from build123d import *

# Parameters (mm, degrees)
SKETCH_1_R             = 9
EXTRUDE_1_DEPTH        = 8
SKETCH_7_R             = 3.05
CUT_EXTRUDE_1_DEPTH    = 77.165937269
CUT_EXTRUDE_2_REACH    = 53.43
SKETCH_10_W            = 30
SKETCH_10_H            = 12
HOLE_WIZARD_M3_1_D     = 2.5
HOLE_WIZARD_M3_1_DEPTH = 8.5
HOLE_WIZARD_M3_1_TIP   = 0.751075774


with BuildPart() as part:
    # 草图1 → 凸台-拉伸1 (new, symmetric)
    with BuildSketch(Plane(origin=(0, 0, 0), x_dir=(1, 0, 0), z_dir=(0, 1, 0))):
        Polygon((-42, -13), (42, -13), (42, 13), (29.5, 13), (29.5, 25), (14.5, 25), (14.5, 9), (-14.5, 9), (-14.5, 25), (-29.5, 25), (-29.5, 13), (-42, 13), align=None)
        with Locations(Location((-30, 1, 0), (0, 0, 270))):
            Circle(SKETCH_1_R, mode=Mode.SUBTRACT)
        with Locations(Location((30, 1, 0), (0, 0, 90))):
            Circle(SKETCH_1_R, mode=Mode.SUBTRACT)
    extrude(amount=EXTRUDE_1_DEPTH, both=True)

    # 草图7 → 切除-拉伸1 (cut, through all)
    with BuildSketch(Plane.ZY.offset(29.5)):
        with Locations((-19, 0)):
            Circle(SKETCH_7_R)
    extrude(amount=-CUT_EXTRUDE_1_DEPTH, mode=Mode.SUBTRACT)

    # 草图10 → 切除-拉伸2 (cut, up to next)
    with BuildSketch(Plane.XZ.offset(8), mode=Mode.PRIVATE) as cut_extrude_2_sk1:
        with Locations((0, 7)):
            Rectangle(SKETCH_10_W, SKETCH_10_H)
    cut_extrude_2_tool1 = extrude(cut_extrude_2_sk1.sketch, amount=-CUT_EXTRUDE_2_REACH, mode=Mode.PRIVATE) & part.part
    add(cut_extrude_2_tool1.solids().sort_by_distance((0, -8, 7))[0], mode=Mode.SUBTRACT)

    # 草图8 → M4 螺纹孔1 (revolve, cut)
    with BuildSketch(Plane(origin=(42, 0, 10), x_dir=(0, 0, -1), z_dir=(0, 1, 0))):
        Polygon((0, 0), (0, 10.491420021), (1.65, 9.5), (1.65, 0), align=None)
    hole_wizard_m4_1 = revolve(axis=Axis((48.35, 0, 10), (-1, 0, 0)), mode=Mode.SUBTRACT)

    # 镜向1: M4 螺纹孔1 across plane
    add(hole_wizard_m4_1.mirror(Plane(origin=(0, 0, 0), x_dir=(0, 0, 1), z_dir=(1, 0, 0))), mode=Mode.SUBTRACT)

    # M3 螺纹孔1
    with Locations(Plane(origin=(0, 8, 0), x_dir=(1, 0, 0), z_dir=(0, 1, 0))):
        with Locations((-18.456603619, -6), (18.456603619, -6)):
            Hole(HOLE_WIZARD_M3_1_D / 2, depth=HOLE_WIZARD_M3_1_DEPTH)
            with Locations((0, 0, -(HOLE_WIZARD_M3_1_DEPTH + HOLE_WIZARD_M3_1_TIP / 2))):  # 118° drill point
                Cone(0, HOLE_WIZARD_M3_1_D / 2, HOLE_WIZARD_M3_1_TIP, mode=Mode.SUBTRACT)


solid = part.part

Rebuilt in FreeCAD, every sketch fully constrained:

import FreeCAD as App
import Part
import Sketcher
from FreeCAD import Vector
Q = App.Units.Quantity

doc = App.newDocument("Part")
params = doc.addObject("Spreadsheet::Sheet", "Params")
for row, (alias, value) in enumerate([
    ("sketch1_diameter", "18 mm"),
    ("sketch1_width", "84 mm"),
    ("sketch1_width2", "15 mm"),
    ("sketch1_width3", "29 mm"),
    ("sketch1_height", "26 mm"),
    ("pad1_length", "16 mm"),
    ("sketch2_diameter", "6.1 mm"),
    ("sketch3_width", "30 mm"),
    ("sketch3_height", "12 mm"),
    ("sketch4_width", "9.5 mm"),
    ("sketch4_height", "1.65 mm"),
    ("groove_angle", "360 deg"),
    ("sketch5_diameter", "2.5 mm"),
    ("hole_diameter", "2.5 mm"),
    ("hole_depth", "8.5 mm"),
], start=1):
    params.set(f"A{row}", alias)
    params.set(f"B{row}", "=" + value)
    params.setAlias(f"B{row}", alias)

body = doc.addObject("PartDesign::Body", "Body")

# Sketch on XZ plane
sketch1 = body.newObject("Sketcher::SketchObject", "Sketch")
sketch1.AttachmentSupport = (doc.getObject("XZ_Plane"), [""])
sketch1.MapMode = "FlatFace"
sketch1.addGeometry(Part.LineSegment(Vector(-42, 13, 0), Vector(42, 13, 0)), False)
sketch1.addGeometry(Part.LineSegment(Vector(42, 13, 0), Vector(42, -13, 0)), False)
sketch1.addGeometry(Part.LineSegment(Vector(42, -13, 0), Vector(30, -13, 0)), False)
sketch1.addGeometry(Part.LineSegment(Vector(30, -13, 0), Vector(30, -25, 0)), False)
sketch1.addGeometry(Part.LineSegment(Vector(30, -25, 0), Vector(14, -25, 0)), False)
sketch1.addGeometry(Part.LineSegment(Vector(14, -25, 0), Vector(14, -9, 0)), False)
sketch1.addGeometry(Part.LineSegment(Vector(14, -9, 0), Vector(-14, -9, 0)), False)
sketch1.addGeometry(Part.LineSegment(Vector(-14, -9, 0), Vector(-14, -25, 0)), False)
sketch1.addGeometry(Part.LineSegment(Vector(-14, -25, 0), Vector(-30, -25, 0)), False)
sketch1.addGeometry(Part.LineSegment(Vector(-30, -25, 0), Vector(-30, -13, 0)), False)
sketch1.addGeometry(Part.LineSegment(Vector(-30, -13, 0), Vector(-42, -13, 0)), False)
sketch1.addGeometry(Part.LineSegment(Vector(-42, -13, 0), Vector(-42, 13, 0)), False)
sketch1.addGeometry(Part.Circle(Vector(-30, -1, 0), Vector(0, 0, 1), 9), False)
sketch1.addGeometry(Part.Circle(Vector(30, -1, 0), Vector(0, 0, 1), 9), False)
sketch1.addConstraint(Sketcher.Constraint("Coincident", 0, 2, 1, 1))
sketch1.addConstraint(Sketcher.Constraint("Coincident", 1, 2, 2, 1))
sketch1.addConstraint(Sketcher.Constraint("Coincident", 2, 2, 3, 1))
sketch1.addConstraint(Sketcher.Constraint("Coincident", 3, 2, 4, 1))
sketch1.addConstraint(Sketcher.Constraint("Coincident", 4, 2, 5, 1))
sketch1.addConstraint(Sketcher.Constraint("Coincident", 5, 2, 6, 1))
sketch1.addConstraint(Sketcher.Constraint("Coincident", 6, 2, 7, 1))
sketch1.addConstraint(Sketcher.Constraint("Coincident", 7, 2, 8, 1))
sketch1.addConstraint(Sketcher.Constraint("Coincident", 8, 2, 9, 1))
sketch1.addConstraint(Sketcher.Constraint("Coincident", 9, 2, 10, 1))
sketch1.addConstraint(Sketcher.Constraint("Coincident", 10, 2, 11, 1))
sketch1.addConstraint(Sketcher.Constraint("Coincident", 11, 2, 0, 1))
sketch1.addConstraint(Sketcher.Constraint("Horizontal", 0))
sketch1.addConstraint(Sketcher.Constraint("Vertical", 1))
sketch1.addConstraint(Sketcher.Constraint("Horizontal", 2))
sketch1.addConstraint(Sketcher.Constraint("Vertical", 3))
sketch1.addConstraint(Sketcher.Constraint("Horizontal", 4))
sketch1.addConstraint(Sketcher.Constraint("Vertical", 5))
sketch1.addConstraint(Sketcher.Constraint("Horizontal", 6))
sketch1.addConstraint(Sketcher.Constraint("Vertical", 7))
sketch1.addConstraint(Sketcher.Constraint("Horizontal", 8))
sketch1.addConstraint(Sketcher.Constraint("Vertical", 9))
sketch1.addConstraint(Sketcher.Constraint("Horizontal", 10))
sketch1.addConstraint(Sketcher.Constraint("Vertical", 11))
sketch1.addConstraint(Sketcher.Constraint("Equal", 12, 13))
sketch1.addConstraint(Sketcher.Constraint("Symmetric", 0, 2, 10, 2, -1, 1))
sketch1.addConstraint(Sketcher.Constraint("Symmetric", 12, 3, 13, 3, -2))
sketch1.addConstraint(Sketcher.Constraint("Symmetric", 4, 2, 7, 2, -2))
sketch1.addConstraint(Sketcher.Constraint("Symmetric", 2, 2, 9, 2, -2))
sketch1.addConstraint(Sketcher.Constraint("Diameter", 12, Q("18 mm")))
sketch1.addConstraint(Sketcher.Constraint("DistanceX", 0, 1, 0, 2, Q("84 mm")))
sketch1.addConstraint(Sketcher.Constraint("DistanceX", 4, 2, 4, 1, Q("15 mm")))
sketch1.addConstraint(Sketcher.Constraint("DistanceX", 6, 2, 6, 1, Q("29 mm")))
sketch1.addConstraint(Sketcher.Constraint("DistanceY", 1, 2, 1, 1, Q("26 mm")))
sketch1.addConstraint(Sketcher.Constraint("DistanceY", 3, 2, 3, 1, Q("12 mm")))
sketch1.addConstraint(Sketcher.Constraint("DistanceY", 5, 1, 5, 2, Q("16 mm")))
sketch1.addConstraint(Sketcher.Constraint("DistanceX", 12, 3, -1, 1, Q("30 mm")))
sketch1.addConstraint(Sketcher.Constraint("DistanceY", 12, 3, -1, 1, Q("1 mm")))
sketch1.setExpression("Constraints[29]", "Params.sketch1_diameter")
sketch1.setExpression("Constraints[30]", "Params.sketch1_width")
sketch1.setExpression("Constraints[31]", "Params.sketch1_width2")
sketch1.setExpression("Constraints[32]", "Params.sketch1_width3")
sketch1.setExpression("Constraints[33]", "Params.sketch1_height")
pad1 = body.newObject("PartDesign::Pad", "Pad")
pad1.Profile = sketch1
pad1.setExpression("Length", "Params.pad1_length")
pad1.Midplane = True

# Sketch on YZ plane
sketch2 = body.newObject("Sketcher::SketchObject", "Sketch001")
sketch2.AttachmentSupport = (doc.getObject("YZ_Plane"), [""])
sketch2.MapMode = "FlatFace"
sketch2.AttachmentOffset = App.Placement(Vector(0, 0, -29.5), App.Rotation())
sketch2.addGeometry(Part.Circle(Vector(0, -19, 0), Vector(0, 0, 1), 3), False)
sketch2.addConstraint(Sketcher.Constraint("PointOnObject", 0, 3, -2))
sketch2.addConstraint(Sketcher.Constraint("Diameter", 0, Q("6.1 mm")))
sketch2.addConstraint(Sketcher.Constraint("DistanceY", 0, 3, -1, 1, Q("19 mm")))
sketch2.setExpression("Constraints[1]", "Params.sketch2_diameter")
pocket1 = body.newObject("PartDesign::Pocket", "Pocket")
pocket1.Profile = sketch2
pocket1.Type = "ThroughAll"
pocket1.Reversed = True

# Sketch on XZ plane
sketch3 = body.newObject("Sketcher::SketchObject", "Sketch002")
sketch3.AttachmentSupport = (doc.getObject("XZ_Plane"), [""])
sketch3.MapMode = "FlatFace"
sketch3.AttachmentOffset = App.Placement(Vector(0, 0, 8), App.Rotation())
sketch3.addGeometry(Part.LineSegment(Vector(-15, 13, 0), Vector(-15, 1, 0)), False)
sketch3.addGeometry(Part.LineSegment(Vector(-15, 1, 0), Vector(15, 1, 0)), False)
sketch3.addGeometry(Part.LineSegment(Vector(15, 1, 0), Vector(15, 13, 0)), False)
sketch3.addGeometry(Part.LineSegment(Vector(15, 13, 0), Vector(-15, 13, 0)), False)
sketch3.addConstraint(Sketcher.Constraint("Coincident", 0, 2, 1, 1))
sketch3.addConstraint(Sketcher.Constraint("Coincident", 1, 2, 2, 1))
sketch3.addConstraint(Sketcher.Constraint("Coincident", 2, 2, 3, 1))
sketch3.addConstraint(Sketcher.Constraint("Coincident", 3, 2, 0, 1))
sketch3.addConstraint(Sketcher.Constraint("Vertical", 0))
sketch3.addConstraint(Sketcher.Constraint("Horizontal", 1))
sketch3.addConstraint(Sketcher.Constraint("Vertical", 2))
sketch3.addConstraint(Sketcher.Constraint("Horizontal", 3))
sketch3.addConstraint(Sketcher.Constraint("DistanceX", 1, 1, 1, 2, Q("30 mm")))
sketch3.addConstraint(Sketcher.Constraint("DistanceY", 0, 2, 0, 1, Q("12 mm")))
sketch3.addConstraint(Sketcher.Constraint("DistanceX", 0, 2, -1, 1, Q("15 mm")))
sketch3.addConstraint(Sketcher.Constraint("DistanceY", -1, 1, 0, 2, Q("1 mm")))
sketch3.setExpression("Constraints[8]", "Params.sketch3_width")
sketch3.setExpression("Constraints[9]", "Params.sketch3_height")
pocket2 = body.newObject("PartDesign::Pocket", "Pocket001")
pocket2.Profile = sketch3
pocket2.Type = "UpToFirst"

# Sketch on XZ plane
sketch4 = body.newObject("Sketcher::SketchObject", "Sketch003")
sketch4.AttachmentSupport = (doc.getObject("XZ_Plane"), [""])
sketch4.MapMode = "FlatFace"
sketch4.addGeometry(Part.LineSegment(Vector(31.5, 10, 0), Vector(42, 10, 0)), False)
sketch4.addGeometry(Part.LineSegment(Vector(42, 10, 0), Vector(42, 8.3, 0)), False)
sketch4.addGeometry(Part.LineSegment(Vector(42, 8.3, 0), Vector(32.5, 8.3, 0)), False)
sketch4.addGeometry(Part.LineSegment(Vector(32.5, 8.3, 0), Vector(31.5, 10, 0)), False)
sketch4.addGeometry(Part.LineSegment(Vector(42, 10, 0), Vector(31.5, 10, 0)), True)  # axis
sketch4.addConstraint(Sketcher.Constraint("Coincident", 0, 2, 1, 1))
sketch4.addConstraint(Sketcher.Constraint("Coincident", 1, 2, 2, 1))
sketch4.addConstraint(Sketcher.Constraint("Coincident", 2, 2, 3, 1))
sketch4.addConstraint(Sketcher.Constraint("Coincident", 3, 2, 0, 1))
sketch4.addConstraint(Sketcher.Constraint("Horizontal", 0))
sketch4.addConstraint(Sketcher.Constraint("Vertical", 1))
sketch4.addConstraint(Sketcher.Constraint("Horizontal", 2))
sketch4.addConstraint(Sketcher.Constraint("Horizontal", 4))
sketch4.addConstraint(Sketcher.Constraint("Coincident", 4, 1, 0, 2))
sketch4.addConstraint(Sketcher.Constraint("Equal", 0, 4))
sketch4.addConstraint(Sketcher.Constraint("Angle", 3, Q("121 deg")))
sketch4.addConstraint(Sketcher.Constraint("DistanceX", 2, 2, 2, 1, Q("9.5 mm")))
sketch4.addConstraint(Sketcher.Constraint("DistanceX", -1, 1, 0, 2, Q("42 mm")))
sketch4.addConstraint(Sketcher.Constraint("DistanceY", -1, 1, 0, 2, Q("10 mm")))
sketch4.addConstraint(Sketcher.Constraint("DistanceY", 1, 2, 1, 1, Q("1.65 mm")))
sketch4.setExpression("Constraints[11]", "Params.sketch4_width")
sketch4.setExpression("Constraints[14]", "Params.sketch4_height")
groove = body.newObject("PartDesign::Groove", "Groove")
groove.Profile = sketch4
groove.ReferenceAxis = (sketch4, ["Axis0"])
groove.setExpression("Angle", "Params.groove_angle")
doc.recompute()

mirrored = body.newObject("PartDesign::Mirrored", "Mirrored")
mirrored.Originals = [groove]
mirrored.MirrorPlane = (doc.getObject("YZ_Plane"), [""])
body.Tip = mirrored

# Sketch on XZ plane
sketch5 = body.newObject("Sketcher::SketchObject", "Sketch004")
sketch5.AttachmentSupport = (doc.getObject("XZ_Plane"), [""])
sketch5.MapMode = "FlatFace"
sketch5.AttachmentOffset = App.Placement(Vector(0, 0, -8), App.Rotation())
sketch5.addGeometry(Part.Circle(Vector(-18.5, 6, 0), Vector(0, 0, 1), 1.2), False)
sketch5.addGeometry(Part.Circle(Vector(18.5, 6, 0), Vector(0, 0, 1), 1.2), False)
sketch5.addConstraint(Sketcher.Constraint("Equal", 0, 1))
sketch5.addConstraint(Sketcher.Constraint("Symmetric", 0, 3, 1, 3, -2))
sketch5.addConstraint(Sketcher.Constraint("Diameter", 0, Q("2.5 mm")))
sketch5.addConstraint(Sketcher.Constraint("DistanceY", -1, 1, 0, 3, Q("6 mm")))
sketch5.addConstraint(Sketcher.Constraint("DistanceX", 0, 3, -1, 1, Q("18.456604 mm")))
sketch5.setExpression("Constraints[2]", "Params.sketch5_diameter")
doc.recompute()
hole = body.newObject("PartDesign::Hole", "Hole")
hole.Profile = sketch5
hole.ThreadType = "None"
hole.setExpression("Diameter", "Params.hole_diameter")
hole.DepthType = "Dimension"
hole.setExpression("Depth", "Params.hole_depth")
hole.DrillPoint = "Angled"
hole.DrillPointAngle = 118
hole.Reversed = True

doc.recompute()
